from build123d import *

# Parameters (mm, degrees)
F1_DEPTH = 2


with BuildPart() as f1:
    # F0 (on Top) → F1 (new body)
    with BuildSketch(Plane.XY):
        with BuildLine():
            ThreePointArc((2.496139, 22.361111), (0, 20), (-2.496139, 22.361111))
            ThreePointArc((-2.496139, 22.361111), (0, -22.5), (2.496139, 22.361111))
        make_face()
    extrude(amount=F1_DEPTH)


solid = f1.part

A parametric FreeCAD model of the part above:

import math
import FreeCAD as App
import Part
import Sketcher

V = App.Vector

doc = App.newDocument("Part")
body = doc.addObject("PartDesign::Body", "Body")

# Sketch on XY plane
sketch1 = body.newObject("Sketcher::SketchObject", "Sketch")
sketch1.AttachmentSupport = (doc.getObject("XY_Plane"), [""])
sketch1.MapMode = "FlatFace"
sketch1.addGeometry([
    Part.ArcOfCircle(Part.Circle(V(0, 22.5, 0), V(0, 0, 1), 2.5), math.radians(-177), math.radians(-3)),
    Part.ArcOfCircle(Part.Circle(V(0, 0, 0), V(0, 0, 1), 22.5), math.radians(96), math.radians(444)),
], False)
sketch1.addConstraint([
    Sketcher.Constraint("Coincident", 0, 1, 1, 1),
    Sketcher.Constraint("Coincident", 1, 2, 0, 2),
    Sketcher.Constraint("Coincident", 1, 3, -1, 1),
    Sketcher.Constraint("PointOnObject", 0, 3, -2),
    Sketcher.Constraint("Radius", 0, 2.5),
    Sketcher.Constraint("Radius", 1, 22.5),
    Sketcher.Constraint("DistanceY", -1, 1, 0, 3, 22.5),
])
pad1 = body.newObject("PartDesign::Pad", "Pad")
pad1.Profile = sketch1
pad1.Length = 2

doc.recompute()
